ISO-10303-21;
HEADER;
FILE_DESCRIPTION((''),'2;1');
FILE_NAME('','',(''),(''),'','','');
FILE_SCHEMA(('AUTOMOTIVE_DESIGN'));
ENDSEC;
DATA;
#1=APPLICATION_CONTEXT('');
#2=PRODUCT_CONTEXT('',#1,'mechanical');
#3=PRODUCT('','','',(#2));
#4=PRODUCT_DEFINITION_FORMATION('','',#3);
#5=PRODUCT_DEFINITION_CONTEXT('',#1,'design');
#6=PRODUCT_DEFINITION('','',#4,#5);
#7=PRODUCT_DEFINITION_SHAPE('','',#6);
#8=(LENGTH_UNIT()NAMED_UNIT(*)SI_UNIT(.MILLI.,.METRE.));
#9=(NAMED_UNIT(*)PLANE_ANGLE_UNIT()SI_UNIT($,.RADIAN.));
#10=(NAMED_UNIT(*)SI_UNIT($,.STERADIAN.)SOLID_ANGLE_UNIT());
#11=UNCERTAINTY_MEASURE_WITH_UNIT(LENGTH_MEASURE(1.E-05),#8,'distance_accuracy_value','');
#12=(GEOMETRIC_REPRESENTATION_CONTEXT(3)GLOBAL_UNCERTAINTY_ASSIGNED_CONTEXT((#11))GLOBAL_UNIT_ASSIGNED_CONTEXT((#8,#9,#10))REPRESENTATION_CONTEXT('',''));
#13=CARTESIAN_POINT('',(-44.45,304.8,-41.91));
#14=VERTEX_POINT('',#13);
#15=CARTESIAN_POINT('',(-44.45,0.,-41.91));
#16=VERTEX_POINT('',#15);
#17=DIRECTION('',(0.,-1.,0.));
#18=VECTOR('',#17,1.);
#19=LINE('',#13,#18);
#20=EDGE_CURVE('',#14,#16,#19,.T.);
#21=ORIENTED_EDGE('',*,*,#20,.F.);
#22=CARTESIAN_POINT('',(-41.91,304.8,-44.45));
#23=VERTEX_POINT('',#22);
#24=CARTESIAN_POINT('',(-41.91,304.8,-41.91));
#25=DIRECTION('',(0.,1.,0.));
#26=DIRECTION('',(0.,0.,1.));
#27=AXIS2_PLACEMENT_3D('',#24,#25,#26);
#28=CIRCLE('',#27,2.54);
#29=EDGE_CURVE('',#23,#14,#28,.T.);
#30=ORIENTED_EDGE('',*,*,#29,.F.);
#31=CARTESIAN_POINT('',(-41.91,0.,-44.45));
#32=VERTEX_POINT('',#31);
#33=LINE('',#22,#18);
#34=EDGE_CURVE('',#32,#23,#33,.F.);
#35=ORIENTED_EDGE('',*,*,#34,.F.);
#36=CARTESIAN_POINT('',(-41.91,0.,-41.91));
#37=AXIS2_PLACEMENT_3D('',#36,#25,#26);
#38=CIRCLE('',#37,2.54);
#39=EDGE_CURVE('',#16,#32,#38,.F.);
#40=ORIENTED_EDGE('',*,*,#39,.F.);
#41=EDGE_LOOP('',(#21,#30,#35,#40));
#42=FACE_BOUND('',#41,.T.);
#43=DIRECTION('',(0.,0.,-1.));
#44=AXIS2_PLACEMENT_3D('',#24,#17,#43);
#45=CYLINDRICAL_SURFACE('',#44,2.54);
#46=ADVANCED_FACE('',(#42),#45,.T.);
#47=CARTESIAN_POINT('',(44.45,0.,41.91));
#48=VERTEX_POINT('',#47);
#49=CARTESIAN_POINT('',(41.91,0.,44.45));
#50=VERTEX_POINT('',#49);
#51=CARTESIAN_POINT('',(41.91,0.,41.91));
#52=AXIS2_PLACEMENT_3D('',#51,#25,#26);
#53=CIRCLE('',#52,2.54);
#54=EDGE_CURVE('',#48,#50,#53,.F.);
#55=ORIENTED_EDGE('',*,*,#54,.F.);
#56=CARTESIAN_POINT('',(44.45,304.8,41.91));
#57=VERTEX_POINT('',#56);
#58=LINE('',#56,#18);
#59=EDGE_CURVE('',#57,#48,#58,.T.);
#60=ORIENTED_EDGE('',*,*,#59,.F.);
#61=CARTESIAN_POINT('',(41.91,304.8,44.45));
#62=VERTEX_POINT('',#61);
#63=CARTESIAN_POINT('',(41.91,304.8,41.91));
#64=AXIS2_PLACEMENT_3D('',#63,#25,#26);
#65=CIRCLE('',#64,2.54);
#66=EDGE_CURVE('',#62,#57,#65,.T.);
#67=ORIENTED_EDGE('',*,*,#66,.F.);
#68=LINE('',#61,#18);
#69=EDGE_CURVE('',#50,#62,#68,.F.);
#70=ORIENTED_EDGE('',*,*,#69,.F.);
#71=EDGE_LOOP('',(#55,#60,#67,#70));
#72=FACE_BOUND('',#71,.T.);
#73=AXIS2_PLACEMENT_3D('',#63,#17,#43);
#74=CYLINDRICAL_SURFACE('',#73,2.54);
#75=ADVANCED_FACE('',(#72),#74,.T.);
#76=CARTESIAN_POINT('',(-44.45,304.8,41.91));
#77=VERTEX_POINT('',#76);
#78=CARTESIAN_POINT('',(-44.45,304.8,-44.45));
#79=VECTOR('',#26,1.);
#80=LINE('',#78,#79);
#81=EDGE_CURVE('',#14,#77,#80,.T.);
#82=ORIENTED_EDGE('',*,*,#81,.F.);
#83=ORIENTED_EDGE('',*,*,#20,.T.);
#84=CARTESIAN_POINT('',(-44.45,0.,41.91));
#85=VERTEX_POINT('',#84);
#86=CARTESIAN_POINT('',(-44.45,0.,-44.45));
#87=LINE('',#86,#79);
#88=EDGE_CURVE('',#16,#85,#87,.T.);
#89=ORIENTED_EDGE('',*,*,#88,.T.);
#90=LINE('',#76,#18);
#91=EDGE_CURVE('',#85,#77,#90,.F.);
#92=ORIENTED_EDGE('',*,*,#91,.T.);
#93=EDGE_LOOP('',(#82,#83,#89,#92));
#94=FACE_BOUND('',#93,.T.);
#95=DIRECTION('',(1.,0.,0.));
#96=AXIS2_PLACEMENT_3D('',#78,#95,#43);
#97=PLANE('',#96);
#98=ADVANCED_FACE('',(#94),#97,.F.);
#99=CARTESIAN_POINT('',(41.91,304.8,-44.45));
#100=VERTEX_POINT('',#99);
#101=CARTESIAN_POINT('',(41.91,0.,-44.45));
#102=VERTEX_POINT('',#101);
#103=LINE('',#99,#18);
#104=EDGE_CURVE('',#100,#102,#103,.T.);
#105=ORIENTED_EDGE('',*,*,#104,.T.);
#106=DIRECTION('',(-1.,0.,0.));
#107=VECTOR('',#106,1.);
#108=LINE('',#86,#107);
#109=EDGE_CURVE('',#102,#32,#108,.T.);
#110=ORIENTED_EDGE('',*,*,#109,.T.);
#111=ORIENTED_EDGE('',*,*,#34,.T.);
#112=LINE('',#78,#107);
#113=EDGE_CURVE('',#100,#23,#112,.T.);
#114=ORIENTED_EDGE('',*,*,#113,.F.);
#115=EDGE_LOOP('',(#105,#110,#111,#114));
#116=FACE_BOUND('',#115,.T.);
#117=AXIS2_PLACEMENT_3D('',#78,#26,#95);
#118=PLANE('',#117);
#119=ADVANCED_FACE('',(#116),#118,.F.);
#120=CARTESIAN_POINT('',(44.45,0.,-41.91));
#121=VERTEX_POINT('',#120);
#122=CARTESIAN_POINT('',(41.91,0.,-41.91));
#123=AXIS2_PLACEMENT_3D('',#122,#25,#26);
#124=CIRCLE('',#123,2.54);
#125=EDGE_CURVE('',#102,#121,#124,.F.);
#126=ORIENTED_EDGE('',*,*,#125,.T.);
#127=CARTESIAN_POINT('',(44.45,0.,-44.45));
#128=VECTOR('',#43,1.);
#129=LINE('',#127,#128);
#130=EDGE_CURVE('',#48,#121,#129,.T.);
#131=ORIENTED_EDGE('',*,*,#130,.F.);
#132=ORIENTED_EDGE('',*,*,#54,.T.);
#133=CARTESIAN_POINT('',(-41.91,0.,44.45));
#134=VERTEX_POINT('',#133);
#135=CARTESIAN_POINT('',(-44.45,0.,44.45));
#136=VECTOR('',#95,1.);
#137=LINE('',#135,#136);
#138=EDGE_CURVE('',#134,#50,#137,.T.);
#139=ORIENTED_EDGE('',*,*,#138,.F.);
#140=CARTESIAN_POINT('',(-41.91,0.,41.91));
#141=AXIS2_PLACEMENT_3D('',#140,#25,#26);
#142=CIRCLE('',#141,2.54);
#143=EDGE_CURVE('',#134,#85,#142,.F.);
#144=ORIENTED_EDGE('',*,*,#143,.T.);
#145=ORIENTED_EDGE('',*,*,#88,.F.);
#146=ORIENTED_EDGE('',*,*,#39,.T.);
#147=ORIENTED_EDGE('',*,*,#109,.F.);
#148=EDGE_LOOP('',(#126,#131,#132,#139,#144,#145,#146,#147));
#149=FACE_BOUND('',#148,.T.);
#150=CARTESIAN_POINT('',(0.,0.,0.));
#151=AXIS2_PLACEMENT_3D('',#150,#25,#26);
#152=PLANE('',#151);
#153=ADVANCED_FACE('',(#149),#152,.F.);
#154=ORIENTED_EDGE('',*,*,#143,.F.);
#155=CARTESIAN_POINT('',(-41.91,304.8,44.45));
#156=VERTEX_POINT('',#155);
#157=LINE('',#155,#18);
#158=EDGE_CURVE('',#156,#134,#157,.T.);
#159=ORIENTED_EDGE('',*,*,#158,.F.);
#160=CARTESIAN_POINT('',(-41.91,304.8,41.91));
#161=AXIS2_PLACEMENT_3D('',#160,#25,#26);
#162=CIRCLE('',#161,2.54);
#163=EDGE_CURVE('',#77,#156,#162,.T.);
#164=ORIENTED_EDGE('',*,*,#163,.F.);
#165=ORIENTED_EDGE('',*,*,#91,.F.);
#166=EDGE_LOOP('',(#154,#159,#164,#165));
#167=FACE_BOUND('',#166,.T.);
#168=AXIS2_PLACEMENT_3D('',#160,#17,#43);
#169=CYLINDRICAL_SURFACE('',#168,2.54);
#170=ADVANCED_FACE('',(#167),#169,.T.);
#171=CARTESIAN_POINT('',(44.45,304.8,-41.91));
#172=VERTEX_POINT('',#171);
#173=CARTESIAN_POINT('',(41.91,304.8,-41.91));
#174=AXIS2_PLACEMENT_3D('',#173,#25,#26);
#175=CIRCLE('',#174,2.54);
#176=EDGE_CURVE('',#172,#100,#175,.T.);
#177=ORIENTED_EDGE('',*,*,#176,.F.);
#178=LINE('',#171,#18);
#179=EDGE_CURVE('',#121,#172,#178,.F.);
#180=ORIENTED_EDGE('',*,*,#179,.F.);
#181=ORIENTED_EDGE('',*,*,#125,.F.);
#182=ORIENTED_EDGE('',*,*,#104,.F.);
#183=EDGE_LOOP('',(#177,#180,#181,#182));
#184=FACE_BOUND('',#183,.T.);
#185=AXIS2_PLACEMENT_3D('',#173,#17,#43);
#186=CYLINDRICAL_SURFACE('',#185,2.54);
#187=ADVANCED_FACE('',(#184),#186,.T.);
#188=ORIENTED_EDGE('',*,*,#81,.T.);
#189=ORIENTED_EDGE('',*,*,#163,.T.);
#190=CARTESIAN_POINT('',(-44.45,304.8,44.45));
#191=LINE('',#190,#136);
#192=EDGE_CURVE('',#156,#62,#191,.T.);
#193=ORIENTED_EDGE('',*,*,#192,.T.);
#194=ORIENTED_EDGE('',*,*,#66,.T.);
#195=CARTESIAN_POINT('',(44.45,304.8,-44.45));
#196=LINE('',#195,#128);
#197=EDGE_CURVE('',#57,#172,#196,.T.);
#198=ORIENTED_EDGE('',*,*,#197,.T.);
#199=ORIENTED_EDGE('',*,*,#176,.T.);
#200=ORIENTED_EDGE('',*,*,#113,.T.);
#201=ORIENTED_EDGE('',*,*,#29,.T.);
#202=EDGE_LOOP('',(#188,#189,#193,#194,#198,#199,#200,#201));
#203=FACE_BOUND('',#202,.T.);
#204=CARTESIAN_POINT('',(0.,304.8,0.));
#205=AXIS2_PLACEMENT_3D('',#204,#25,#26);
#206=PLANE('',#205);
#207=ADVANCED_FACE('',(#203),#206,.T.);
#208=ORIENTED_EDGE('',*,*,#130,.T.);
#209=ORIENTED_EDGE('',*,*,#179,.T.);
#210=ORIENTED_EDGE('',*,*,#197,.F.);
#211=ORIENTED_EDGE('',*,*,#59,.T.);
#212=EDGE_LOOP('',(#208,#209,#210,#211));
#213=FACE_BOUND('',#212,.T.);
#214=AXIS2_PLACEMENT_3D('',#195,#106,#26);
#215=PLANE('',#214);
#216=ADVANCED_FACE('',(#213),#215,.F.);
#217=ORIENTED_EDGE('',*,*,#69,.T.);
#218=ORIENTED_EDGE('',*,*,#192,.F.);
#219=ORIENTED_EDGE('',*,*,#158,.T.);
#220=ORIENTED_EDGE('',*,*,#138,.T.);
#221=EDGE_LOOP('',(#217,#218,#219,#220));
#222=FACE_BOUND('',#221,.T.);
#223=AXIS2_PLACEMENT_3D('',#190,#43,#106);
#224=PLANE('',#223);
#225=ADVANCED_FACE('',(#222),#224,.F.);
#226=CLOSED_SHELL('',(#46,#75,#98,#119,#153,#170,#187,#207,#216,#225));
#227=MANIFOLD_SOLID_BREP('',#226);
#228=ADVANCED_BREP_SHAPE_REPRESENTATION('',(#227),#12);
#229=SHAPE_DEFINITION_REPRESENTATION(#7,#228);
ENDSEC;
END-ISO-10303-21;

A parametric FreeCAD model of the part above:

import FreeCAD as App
import Part
import Sketcher
Q = App.Units.Quantity


def edges_at(feature, points):
    """Names of the edges that pass closest to the given points."""
    edges = feature.Shape.Edges
    near = lambda p: min(range(len(edges)), key=lambda i: edges[i].distToShape(Part.Vertex(*p))[0])
    return sorted({f"Edge{near(p) + 1}" for p in points})

doc = App.newDocument("Part")
params = doc.addObject("Spreadsheet::Sheet", "Params")
for row, (alias, value) in enumerate([
    ("sketch1_width", "3.5 in"),
    ("pad1_length", "12 in"),
    ("fillet_radius", "0.1 in"),
], start=1):
    params.set(f"A{row}", alias)
    params.set(f"B{row}", "=" + value)
    params.setAlias(f"B{row}", alias)

body = doc.addObject("PartDesign::Body", "Body")

sketch1 = body.newObject("Sketcher::SketchObject", "Sketch")
sketch1.AttachmentSupport = (doc.getObject("XZ_Plane"), [""])
sketch1.MapMode = "FlatFace"
sketch1.addGeometry([
    Part.LineSegment(App.Vector(-44, -44, 0), App.Vector(-44, 44, 0)),
    Part.LineSegment(App.Vector(-44, 44, 0), App.Vector(44, 44, 0)),
    Part.LineSegment(App.Vector(44, 44, 0), App.Vector(44, -44, 0)),
    Part.LineSegment(App.Vector(44, -44, 0), App.Vector(-44, -44, 0)),
], False)
sketch1.addConstraint([
    Sketcher.Constraint("Coincident", 0, 2, 1, 1),
    Sketcher.Constraint("Coincident", 1, 2, 2, 1),
    Sketcher.Constraint("Coincident", 2, 2, 3, 1),
    Sketcher.Constraint("Coincident", 3, 2, 0, 1),
    Sketcher.Constraint("Vertical", 0),
    Sketcher.Constraint("Horizontal", 1),
    Sketcher.Constraint("Vertical", 2),
    Sketcher.Constraint("Horizontal", 3),
    Sketcher.Constraint("Symmetric", 0, 2, 2, 2, -1, 1),
    Sketcher.Constraint("Equal", 3, 0),
    Sketcher.Constraint("DistanceX", 1, 1, 1, 2, Q("3.5 in")),
])
sketch1.setExpression("Constraints[10]", "Params.sketch1_width")
pad1 = body.newObject("PartDesign::Pad", "Pad")
pad1.Profile = sketch1
pad1.setExpression("Length", "Params.pad1_length")
pad1.Reversed = True
doc.recompute()

fillet = body.newObject("PartDesign::Fillet", "Fillet")
fillet.Base = (pad1, edges_at(pad1, [
    (44.45, 152.4, 44.45),
    (-44.45, 152.4, 44.45),
    (-44.45, 152.4, -44.45),
    (44.45, 152.4, -44.45),
]))
fillet.setExpression("Radius", "Params.fillet_radius")

doc.recompute()
